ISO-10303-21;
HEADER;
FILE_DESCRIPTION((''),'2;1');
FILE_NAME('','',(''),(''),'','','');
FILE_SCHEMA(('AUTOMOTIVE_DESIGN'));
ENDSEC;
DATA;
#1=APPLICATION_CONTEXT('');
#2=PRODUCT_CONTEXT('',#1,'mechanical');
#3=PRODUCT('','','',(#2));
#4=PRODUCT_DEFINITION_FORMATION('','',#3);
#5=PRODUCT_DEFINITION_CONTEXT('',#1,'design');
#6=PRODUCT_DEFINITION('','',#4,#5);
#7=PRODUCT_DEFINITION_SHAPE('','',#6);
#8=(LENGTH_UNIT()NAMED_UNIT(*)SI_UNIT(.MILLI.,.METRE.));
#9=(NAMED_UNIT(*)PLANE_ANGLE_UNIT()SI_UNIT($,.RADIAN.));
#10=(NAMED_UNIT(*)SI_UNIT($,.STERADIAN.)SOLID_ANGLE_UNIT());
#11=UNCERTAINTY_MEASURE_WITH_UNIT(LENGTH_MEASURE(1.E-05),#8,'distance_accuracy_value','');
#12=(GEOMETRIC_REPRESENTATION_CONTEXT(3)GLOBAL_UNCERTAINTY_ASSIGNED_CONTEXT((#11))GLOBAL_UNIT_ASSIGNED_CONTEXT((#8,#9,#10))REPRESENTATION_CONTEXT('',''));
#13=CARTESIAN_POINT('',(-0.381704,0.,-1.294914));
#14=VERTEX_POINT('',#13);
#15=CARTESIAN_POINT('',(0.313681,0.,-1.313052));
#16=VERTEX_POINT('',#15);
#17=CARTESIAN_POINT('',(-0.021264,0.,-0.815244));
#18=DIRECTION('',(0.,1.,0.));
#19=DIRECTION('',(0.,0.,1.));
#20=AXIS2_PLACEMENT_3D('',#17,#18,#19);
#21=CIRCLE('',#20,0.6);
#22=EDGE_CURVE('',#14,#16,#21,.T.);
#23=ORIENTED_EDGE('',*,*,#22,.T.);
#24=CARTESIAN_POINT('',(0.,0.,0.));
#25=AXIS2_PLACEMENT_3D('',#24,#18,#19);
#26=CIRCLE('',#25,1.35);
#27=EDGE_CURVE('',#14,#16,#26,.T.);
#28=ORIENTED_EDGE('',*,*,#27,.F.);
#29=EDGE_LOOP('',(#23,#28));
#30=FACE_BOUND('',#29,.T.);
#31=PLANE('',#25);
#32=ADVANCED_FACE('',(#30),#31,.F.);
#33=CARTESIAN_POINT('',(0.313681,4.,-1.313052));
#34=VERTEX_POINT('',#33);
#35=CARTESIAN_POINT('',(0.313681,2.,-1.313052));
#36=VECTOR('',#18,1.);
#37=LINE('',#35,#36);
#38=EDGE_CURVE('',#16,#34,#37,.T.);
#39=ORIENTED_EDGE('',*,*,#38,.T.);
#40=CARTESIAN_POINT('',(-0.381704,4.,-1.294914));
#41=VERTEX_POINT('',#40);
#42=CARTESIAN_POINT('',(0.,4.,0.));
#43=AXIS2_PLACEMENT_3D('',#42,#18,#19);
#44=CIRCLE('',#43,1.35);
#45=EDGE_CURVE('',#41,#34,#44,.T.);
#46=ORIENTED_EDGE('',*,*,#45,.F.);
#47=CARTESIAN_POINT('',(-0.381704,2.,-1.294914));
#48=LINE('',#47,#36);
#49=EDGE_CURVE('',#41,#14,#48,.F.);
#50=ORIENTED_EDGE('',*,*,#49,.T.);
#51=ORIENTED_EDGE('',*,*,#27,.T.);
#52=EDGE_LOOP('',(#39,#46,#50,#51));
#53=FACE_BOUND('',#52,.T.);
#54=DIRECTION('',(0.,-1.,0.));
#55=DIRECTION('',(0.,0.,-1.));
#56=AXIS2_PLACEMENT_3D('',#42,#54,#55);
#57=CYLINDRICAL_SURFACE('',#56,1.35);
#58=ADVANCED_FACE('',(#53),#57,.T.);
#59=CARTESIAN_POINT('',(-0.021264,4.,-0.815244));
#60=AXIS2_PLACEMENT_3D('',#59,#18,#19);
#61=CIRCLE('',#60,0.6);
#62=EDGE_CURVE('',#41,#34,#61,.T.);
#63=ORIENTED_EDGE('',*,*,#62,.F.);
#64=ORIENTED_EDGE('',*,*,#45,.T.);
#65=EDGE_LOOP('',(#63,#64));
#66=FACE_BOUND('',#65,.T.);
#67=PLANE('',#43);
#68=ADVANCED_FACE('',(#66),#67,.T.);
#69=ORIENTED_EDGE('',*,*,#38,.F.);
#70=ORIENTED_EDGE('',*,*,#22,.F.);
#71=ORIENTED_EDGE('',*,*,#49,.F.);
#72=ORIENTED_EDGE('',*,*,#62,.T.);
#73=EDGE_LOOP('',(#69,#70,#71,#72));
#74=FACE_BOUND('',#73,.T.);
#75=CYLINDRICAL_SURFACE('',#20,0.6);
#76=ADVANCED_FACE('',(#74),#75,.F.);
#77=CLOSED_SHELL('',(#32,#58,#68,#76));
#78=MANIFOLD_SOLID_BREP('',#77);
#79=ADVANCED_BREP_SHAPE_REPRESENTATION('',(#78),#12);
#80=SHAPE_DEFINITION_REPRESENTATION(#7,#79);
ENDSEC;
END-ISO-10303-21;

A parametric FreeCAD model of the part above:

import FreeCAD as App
import Part
import Sketcher
Q = App.Units.Quantity

doc = App.newDocument("Part")
body = doc.addObject("PartDesign::Body", "Body")

sketch1 = body.newObject("Sketcher::SketchObject", "Sketch")
sketch1.AttachmentSupport = (doc.getObject("XZ_Plane"), [""])
sketch1.MapMode = "FlatFace"
sketch1.addGeometry(Part.Circle(App.Vector(0, 0, 0), App.Vector(0, 0, 1), 1.35), False)
sketch1.addConstraint(Sketcher.Constraint("Coincident", 0, 3, -1, 1))
sketch1.addConstraint(Sketcher.Constraint("Diameter", 0, Q("2.7 mm")))
pad1 = body.newObject("PartDesign::Pad", "Pad")
pad1.Profile = sketch1
pad1.Length = 4
pad1.Reversed = True

sketch2 = body.newObject("Sketcher::SketchObject", "Sketch001")
sketch2.AttachmentSupport = (doc.getObject("XZ_Plane"), [""])
sketch2.MapMode = "FlatFace"
sketch2.AttachmentOffset = App.Placement(App.Vector(0, 0, -4), App.Rotation())
sketch2.addGeometry(Part.Circle(App.Vector(-0.021264, -0.815244, 0), App.Vector(0, 0, 1), 0.6), False)
sketch2.addConstraint(Sketcher.Constraint("Diameter", 0, Q("1.2 mm")))
sketch2.addConstraint(Sketcher.Constraint("DistanceX", 0, 3, -1, 1, Q("0.021264 mm")))
sketch2.addConstraint(Sketcher.Constraint("DistanceY", 0, 3, -1, 1, Q("0.815244 mm")))
pocket1 = body.newObject("PartDesign::Pocket", "Pocket")
pocket1.Profile = sketch2
pocket1.Type = "ThroughAll"
pocket1.Reversed = True

doc.recompute()
